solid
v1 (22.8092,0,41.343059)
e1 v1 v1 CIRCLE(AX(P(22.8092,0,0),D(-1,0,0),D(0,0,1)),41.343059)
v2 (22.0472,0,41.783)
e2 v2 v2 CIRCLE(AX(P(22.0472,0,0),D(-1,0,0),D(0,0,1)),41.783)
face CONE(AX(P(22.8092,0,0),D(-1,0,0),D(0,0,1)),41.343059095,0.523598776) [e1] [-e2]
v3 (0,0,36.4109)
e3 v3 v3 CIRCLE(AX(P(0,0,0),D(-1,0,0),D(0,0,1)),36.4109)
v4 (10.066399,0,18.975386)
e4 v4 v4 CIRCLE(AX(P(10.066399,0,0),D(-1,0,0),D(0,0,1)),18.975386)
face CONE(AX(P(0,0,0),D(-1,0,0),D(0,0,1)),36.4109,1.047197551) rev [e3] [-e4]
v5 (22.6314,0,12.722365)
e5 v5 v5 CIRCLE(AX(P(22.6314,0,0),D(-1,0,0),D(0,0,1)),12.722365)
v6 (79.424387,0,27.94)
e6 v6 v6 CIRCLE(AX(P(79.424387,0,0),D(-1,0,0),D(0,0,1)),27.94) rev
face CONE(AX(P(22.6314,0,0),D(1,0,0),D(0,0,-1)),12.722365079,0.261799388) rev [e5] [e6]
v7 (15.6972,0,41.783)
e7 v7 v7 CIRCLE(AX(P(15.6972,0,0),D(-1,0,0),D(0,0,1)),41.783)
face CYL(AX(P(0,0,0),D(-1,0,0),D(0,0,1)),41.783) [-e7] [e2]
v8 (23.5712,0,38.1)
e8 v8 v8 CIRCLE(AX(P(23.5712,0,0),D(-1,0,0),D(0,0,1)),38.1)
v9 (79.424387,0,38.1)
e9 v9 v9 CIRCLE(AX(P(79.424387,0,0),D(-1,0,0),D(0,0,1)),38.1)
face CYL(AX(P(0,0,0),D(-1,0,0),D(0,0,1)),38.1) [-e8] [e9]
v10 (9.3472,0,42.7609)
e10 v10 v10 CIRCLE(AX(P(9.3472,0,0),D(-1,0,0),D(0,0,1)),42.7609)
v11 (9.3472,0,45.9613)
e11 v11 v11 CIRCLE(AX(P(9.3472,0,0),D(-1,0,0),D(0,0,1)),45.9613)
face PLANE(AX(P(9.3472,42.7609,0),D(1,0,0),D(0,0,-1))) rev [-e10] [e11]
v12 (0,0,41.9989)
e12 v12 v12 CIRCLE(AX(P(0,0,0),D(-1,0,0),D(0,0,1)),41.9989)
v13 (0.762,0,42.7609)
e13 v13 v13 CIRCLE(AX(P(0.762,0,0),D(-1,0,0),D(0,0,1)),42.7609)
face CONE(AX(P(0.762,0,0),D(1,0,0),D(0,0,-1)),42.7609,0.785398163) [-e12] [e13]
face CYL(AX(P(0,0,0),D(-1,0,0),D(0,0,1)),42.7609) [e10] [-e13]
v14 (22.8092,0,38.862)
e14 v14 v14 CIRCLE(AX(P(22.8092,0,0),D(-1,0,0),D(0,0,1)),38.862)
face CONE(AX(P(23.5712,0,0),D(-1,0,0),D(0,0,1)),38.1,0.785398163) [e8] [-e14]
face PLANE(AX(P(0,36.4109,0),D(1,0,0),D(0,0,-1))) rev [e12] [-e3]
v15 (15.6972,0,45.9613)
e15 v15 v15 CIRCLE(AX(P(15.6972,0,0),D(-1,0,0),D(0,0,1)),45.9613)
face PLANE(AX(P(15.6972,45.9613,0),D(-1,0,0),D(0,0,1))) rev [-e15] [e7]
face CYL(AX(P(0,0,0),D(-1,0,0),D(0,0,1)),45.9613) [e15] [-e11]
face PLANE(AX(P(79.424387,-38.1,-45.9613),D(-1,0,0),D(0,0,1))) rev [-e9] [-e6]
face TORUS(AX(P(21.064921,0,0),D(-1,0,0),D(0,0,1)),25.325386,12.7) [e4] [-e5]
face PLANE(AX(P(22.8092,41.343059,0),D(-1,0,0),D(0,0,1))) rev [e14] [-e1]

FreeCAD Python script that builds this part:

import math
import FreeCAD as App
import Part
import Sketcher
from FreeCAD import Vector
Q = App.Units.Quantity

doc = App.newDocument("Part")
body = doc.addObject("PartDesign::Body", "Body")

sketch1 = body.newObject("Sketcher::SketchObject", "Sketch")
sketch1.AttachmentSupport = (doc.getObject("XY_Plane"), [""])
sketch1.MapMode = "FlatFace"
sketch1.addGeometry([
    Part.LineSegment(Vector(0, 41.9989, 0), Vector(0, 36.4109, 0)),
    Part.LineSegment(Vector(0, 36.4109, 0), Vector(10.066399, 18.975386, 0)),
    Part.ArcOfCircle(Part.Circle(Vector(21.064921, 25.325386, 0), Vector(0, 0, 1), 12.7), math.radians(-150), math.radians(-82.91482)),
    Part.LineSegment(Vector(22.6314, 12.722365, 0), Vector(104.8766, 34.7599, 0)),
    Part.LineSegment(Vector(104.8766, 34.7599, 0), Vector(104.8766, 37.338, 0)),
    Part.LineSegment(Vector(104.8766, 37.338, 0), Vector(104.1146, 38.1, 0)),
    Part.LineSegment(Vector(104.1146, 38.1, 0), Vector(23.5712, 38.1, 0)),
    Part.LineSegment(Vector(23.5712, 38.1, 0), Vector(22.8092, 38.862, 0)),
    Part.LineSegment(Vector(22.8092, 38.862, 0), Vector(22.8092, 41.343059, 0)),
    Part.LineSegment(Vector(22.8092, 41.343059, 0), Vector(22.0472, 41.783, 0)),
    Part.LineSegment(Vector(22.0472, 41.783, 0), Vector(15.6972, 41.783, 0)),
    Part.LineSegment(Vector(15.6972, 41.783, 0), Vector(15.6972, 45.9613, 0)),
    Part.LineSegment(Vector(15.6972, 45.9613, 0), Vector(9.3472, 45.9613, 0)),
    Part.LineSegment(Vector(9.3472, 45.9613, 0), Vector(9.3472, 42.7609, 0)),
    Part.LineSegment(Vector(9.3472, 42.7609, 0), Vector(0.762, 42.7609, 0)),
    Part.LineSegment(Vector(0.762, 42.7609, 0), Vector(0, 41.9989, 0)),
], False)
sketch1.addConstraint([
    Sketcher.Constraint("Coincident", 0, 2, 1, 1),
    Sketcher.Constraint("Tangent", 1, 2, 2, 1),
    Sketcher.Constraint("Coincident", 2, 2, 3, 1),
    Sketcher.Constraint("Coincident", 3, 2, 4, 1),
    Sketcher.Constraint("Coincident", 4, 2, 5, 1),
    Sketcher.Constraint("Coincident", 5, 2, 6, 1),
    Sketcher.Constraint("Coincident", 6, 2, 7, 1),
    Sketcher.Constraint("Coincident", 7, 2, 8, 1),
    Sketcher.Constraint("Coincident", 8, 2, 9, 1),
    Sketcher.Constraint("Coincident", 9, 2, 10, 1),
    Sketcher.Constraint("Coincident", 10, 2, 11, 1),
    Sketcher.Constraint("Coincident", 11, 2, 12, 1),
    Sketcher.Constraint("Coincident", 12, 2, 13, 1),
    Sketcher.Constraint("Coincident", 13, 2, 14, 1),
    Sketcher.Constraint("Coincident", 14, 2, 15, 1),
    Sketcher.Constraint("Coincident", 15, 2, 0, 1),
    Sketcher.Constraint("Vertical", 0),
    Sketcher.Constraint("Vertical", 4),
    Sketcher.Constraint("Horizontal", 6),
    Sketcher.Constraint("Vertical", 8),
    Sketcher.Constraint("Horizontal", 10),
    Sketcher.Constraint("Vertical", 11),
    Sketcher.Constraint("Horizontal", 12),
    Sketcher.Constraint("Vertical", 13),
    Sketcher.Constraint("Horizontal", 14),
    Sketcher.Constraint("PointOnObject", 0, 2, -2),
    Sketcher.Constraint("Parallel", 5, 7),
    Sketcher.Constraint("Perpendicular", 7, 15),
    Sketcher.Constraint("Equal", 10, 12),
    Sketcher.Constraint("Equal", 5, 7),
    Sketcher.Constraint("Equal", 7, 15),
    Sketcher.Constraint("Radius", 2, Q("0.5 in")),
    Sketcher.Constraint("Angle", 1, Q("-60 deg")),
    Sketcher.Constraint("Angle", 3, Q("15 deg")),
    Sketcher.Constraint("Angle", 5, Q("135 deg")),
    Sketcher.Constraint("Angle", 9, Q("150 deg")),
    Sketcher.Constraint("DistanceX", 10, 2, 10, 1, Q("0.25 in")),
    Sketcher.Constraint("DistanceY", 0, 2, 0, 1, Q("0.22 in")),
    Sketcher.Constraint("DistanceY", -1, 1, 5, 2, Q("1.5 in")),
    Sketcher.Constraint("DistanceX", 6, 2, 6, 1, Q("3.171 in")),
    Sketcher.Constraint("DistanceX", 14, 2, 14, 1, Q("0.338 in")),
    Sketcher.Constraint("DistanceY", 13, 2, 13, 1, Q("0.126 in")),
    Sketcher.Constraint("DistanceY", -1, 1, 4, 2, Q("1.47 in")),
    Sketcher.Constraint("DistanceX", 9, 2, 8, 2, Q("0.03 in")),
    Sketcher.Constraint("DistanceY", 4, 1, 4, 2, Q("0.1015 in")),
    Sketcher.Constraint("DistanceY", 11, 1, 11, 2, Q("0.1645 in")),
    Sketcher.Constraint("DistanceX", -1, 1, 2, 2, Q("0.891 in")),
    Sketcher.Constraint("DistanceY", -1, 1, 9, 2, Q("1.645 in")),
])
revolution = body.newObject("PartDesign::Revolution", "Revolution")
revolution.Profile = sketch1
revolution.ReferenceAxis = (sketch1, ["H_Axis"])
revolution.Angle = 360

sketch2 = body.newObject("Sketcher::SketchObject", "Sketch001")
sketch2.AttachmentSupport = (doc.getObject("XY_Plane"), [""])
sketch2.MapMode = "FlatFace"
sketch2.addGeometry([
    Part.LineSegment(Vector(79.424387, 38.1, 0), Vector(79.424387, -38.1, 0)),
    Part.LineSegment(Vector(79.424387, -38.1, 0), Vector(104.8766, -38.1, 0)),
    Part.LineSegment(Vector(104.8766, -38.1, 0), Vector(104.8766, 38.1, 0)),
    Part.LineSegment(Vector(104.8766, 38.1, 0), Vector(79.424387, 38.1, 0)),
], False)
sketch2.addConstraint([
    Sketcher.Constraint("Coincident", 0, 2, 1, 1),
    Sketcher.Constraint("Coincident", 1, 2, 2, 1),
    Sketcher.Constraint("Coincident", 2, 2, 3, 1),
    Sketcher.Constraint("Coincident", 3, 2, 0, 1),
    Sketcher.Constraint("Vertical", 0),
    Sketcher.Constraint("Horizontal", 1),
    Sketcher.Constraint("Vertical", 2),
    Sketcher.Constraint("Horizontal", 3),
    Sketcher.Constraint("DistanceY", 0, 2, 0, 1, Q("3 in")),
    Sketcher.Constraint("DistanceY", 0, 2, -1, 1, Q("1.5 in")),
    Sketcher.Constraint("DistanceX", -1, 1, 1, 2, Q("4.129 in")),
    Sketcher.Constraint("DistanceX", 1, 1, 1, 2, 25.452213),
])
pocket1 = body.newObject("PartDesign::Pocket", "Pocket")
pocket1.Profile = sketch2
pocket1.Type = "ThroughAll"
pocket1.Midplane = True

doc.recompute()
